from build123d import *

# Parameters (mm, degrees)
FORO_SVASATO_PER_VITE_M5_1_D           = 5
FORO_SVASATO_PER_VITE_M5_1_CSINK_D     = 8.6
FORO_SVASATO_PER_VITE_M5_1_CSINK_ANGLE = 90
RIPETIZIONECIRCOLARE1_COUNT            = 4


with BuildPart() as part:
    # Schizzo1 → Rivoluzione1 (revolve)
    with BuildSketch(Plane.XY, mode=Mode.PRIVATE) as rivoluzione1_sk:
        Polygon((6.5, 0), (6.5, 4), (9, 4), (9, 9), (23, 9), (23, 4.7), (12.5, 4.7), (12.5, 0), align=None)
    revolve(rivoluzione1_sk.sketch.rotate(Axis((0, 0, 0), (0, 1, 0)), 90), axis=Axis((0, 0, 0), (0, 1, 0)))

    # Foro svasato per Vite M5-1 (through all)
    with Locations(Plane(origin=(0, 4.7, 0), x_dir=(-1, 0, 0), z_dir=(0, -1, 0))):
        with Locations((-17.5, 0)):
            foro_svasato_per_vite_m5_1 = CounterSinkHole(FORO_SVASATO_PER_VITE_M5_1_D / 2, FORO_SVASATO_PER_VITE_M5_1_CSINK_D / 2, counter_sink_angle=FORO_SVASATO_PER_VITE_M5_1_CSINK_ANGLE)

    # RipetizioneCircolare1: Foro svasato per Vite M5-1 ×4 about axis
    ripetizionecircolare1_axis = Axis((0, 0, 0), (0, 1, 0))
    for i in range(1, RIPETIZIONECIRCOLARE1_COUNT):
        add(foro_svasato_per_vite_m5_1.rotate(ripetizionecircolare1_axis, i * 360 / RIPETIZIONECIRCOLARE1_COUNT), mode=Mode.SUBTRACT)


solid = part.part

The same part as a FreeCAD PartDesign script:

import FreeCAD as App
import Part
import Sketcher
from FreeCAD import Vector


def add_polygon(sketch, points):
    """Adds a closed chain of lines whose ends are joined by coincident constraints."""
    first, n = sketch.GeometryCount, len(points)
    for a, b in zip(points, points[1:] + points[:1]):
        sketch.addGeometry(Part.LineSegment(App.Vector(*a, 0), App.Vector(*b, 0)), False)
    for i in range(n):
        sketch.addConstraint(Sketcher.Constraint("Coincident", first + i, 2, first + (i + 1) % n, 1))

doc = App.newDocument("Part")
params = doc.addObject("Spreadsheet::Sheet", "Params")
for row, (alias, value) in enumerate([
    ("sketch1_width", "6 mm"),
    ("sketch1_width2", "14 mm"),
    ("sketch1_height", "4 mm"),
    ("sketch1_height2", "5 mm"),
    ("sketch1_width3", "10.5 mm"),
    ("revolution_angle", "360 deg"),
    ("sketch2_diameter", "5 mm"),
    ("hole_diameter", "5 mm"),
    ("hole_csink_diameter", "8.6 mm"),
], start=1):
    params.set(f"A{row}", alias)
    params.set(f"B{row}", "=" + value)
    params.setAlias(f"B{row}", alias)

body = doc.addObject("PartDesign::Body", "Body")

# Sketch on XY plane
sketch1 = doc.addObject("Sketcher::SketchObject", "Sketch")
body.addObject(sketch1)
sketch1.AttachmentSupport = (doc.XY_Plane, [""])
sketch1.MapMode = "FlatFace"
add_polygon(sketch1, [(6.5, 4), (6.5, 0), (12.5, 0), (12.5, 4.7), (23, 4.7), (23, 9), (9, 9), (9, 4)])  # lines 0-7
sketch1.addConstraint(Sketcher.Constraint("Vertical", 0))
sketch1.addConstraint(Sketcher.Constraint("Horizontal", 1))
sketch1.addConstraint(Sketcher.Constraint("Vertical", 2))
sketch1.addConstraint(Sketcher.Constraint("Horizontal", 3))
sketch1.addConstraint(Sketcher.Constraint("Vertical", 4))
sketch1.addConstraint(Sketcher.Constraint("Horizontal", 5))
sketch1.addConstraint(Sketcher.Constraint("Vertical", 6))
sketch1.addConstraint(Sketcher.Constraint("Horizontal", 7))
sketch1.addConstraint(Sketcher.Constraint("PointOnObject", 0, 2, -1))
sketch1.addConstraint(Sketcher.Constraint("DistanceX", 1, 1, 1, 2, 6.0))
sketch1.addConstraint(Sketcher.Constraint("DistanceX", 5, 2, 5, 1, 14.0))
sketch1.addConstraint(Sketcher.Constraint("DistanceY", 0, 2, 0, 1, 4.0))
sketch1.addConstraint(Sketcher.Constraint("DistanceY", 6, 2, 6, 1, 5.0))
sketch1.addConstraint(Sketcher.Constraint("DistanceX", 3, 1, 3, 2, 10.5))
sketch1.addConstraint(Sketcher.Constraint("DistanceY", 2, 1, 2, 2, 4.7))
sketch1.addConstraint(Sketcher.Constraint("DistanceX", -1, 1, 3, 2, 23.0))
sketch1.setExpression("Constraints[17]", "Params.sketch1_width")
sketch1.setExpression("Constraints[18]", "Params.sketch1_width2")
sketch1.setExpression("Constraints[19]", "Params.sketch1_height")
sketch1.setExpression("Constraints[20]", "Params.sketch1_height2")
sketch1.setExpression("Constraints[21]", "Params.sketch1_width3")
revolution = doc.addObject("PartDesign::Revolution", "Revolution")
body.addObject(revolution)
revolution.Profile = sketch1
revolution.ReferenceAxis = (sketch1, ["V_Axis"])
revolution.setExpression("Angle", "Params.revolution_angle")

# Sketch on XZ plane
sketch2 = doc.addObject("Sketcher::SketchObject", "Sketch001")
body.addObject(sketch2)
sketch2.AttachmentSupport = (doc.XZ_Plane, [""])
sketch2.MapMode = "FlatFace"
sketch2.AttachmentOffset = App.Placement(Vector(0, 0, -4.7), App.Rotation())
sketch2.addGeometry(Part.Circle(Vector(17.5, 0, 0), Vector(0, 0, 1), 2.5), False)
sketch2.addConstraint(Sketcher.Constraint("PointOnObject", 0, 3, -1))
sketch2.addConstraint(Sketcher.Constraint("Diameter", 0, 5.0))
sketch2.addConstraint(Sketcher.Constraint("DistanceX", -1, 1, 0, 3, 17.5))
sketch2.setExpression("Constraints[1]", "Params.sketch2_diameter")
doc.recompute()
hole = doc.addObject("PartDesign::Hole", "Hole")
body.addObject(hole)
hole.Profile = sketch2
hole.ThreadType = "None"
hole.setExpression("Diameter", "Params.hole_diameter")
hole.DepthType = "ThroughAll"
hole.HoleCutType = "Countersink"
hole.setExpression("HoleCutDiameter", "Params.hole_csink_diameter")
hole.HoleCutCountersinkAngle = 90
doc.recompute()

polarpattern = doc.addObject("PartDesign::PolarPattern", "PolarPattern")
body.addObject(polarpattern)
polarpattern.Originals = [hole]
polarpattern.Axis = (doc.Y_Axis, [""])
polarpattern.Angle = 360
polarpattern.Occurrences = 4
body.Tip = polarpattern

doc.recompute()
